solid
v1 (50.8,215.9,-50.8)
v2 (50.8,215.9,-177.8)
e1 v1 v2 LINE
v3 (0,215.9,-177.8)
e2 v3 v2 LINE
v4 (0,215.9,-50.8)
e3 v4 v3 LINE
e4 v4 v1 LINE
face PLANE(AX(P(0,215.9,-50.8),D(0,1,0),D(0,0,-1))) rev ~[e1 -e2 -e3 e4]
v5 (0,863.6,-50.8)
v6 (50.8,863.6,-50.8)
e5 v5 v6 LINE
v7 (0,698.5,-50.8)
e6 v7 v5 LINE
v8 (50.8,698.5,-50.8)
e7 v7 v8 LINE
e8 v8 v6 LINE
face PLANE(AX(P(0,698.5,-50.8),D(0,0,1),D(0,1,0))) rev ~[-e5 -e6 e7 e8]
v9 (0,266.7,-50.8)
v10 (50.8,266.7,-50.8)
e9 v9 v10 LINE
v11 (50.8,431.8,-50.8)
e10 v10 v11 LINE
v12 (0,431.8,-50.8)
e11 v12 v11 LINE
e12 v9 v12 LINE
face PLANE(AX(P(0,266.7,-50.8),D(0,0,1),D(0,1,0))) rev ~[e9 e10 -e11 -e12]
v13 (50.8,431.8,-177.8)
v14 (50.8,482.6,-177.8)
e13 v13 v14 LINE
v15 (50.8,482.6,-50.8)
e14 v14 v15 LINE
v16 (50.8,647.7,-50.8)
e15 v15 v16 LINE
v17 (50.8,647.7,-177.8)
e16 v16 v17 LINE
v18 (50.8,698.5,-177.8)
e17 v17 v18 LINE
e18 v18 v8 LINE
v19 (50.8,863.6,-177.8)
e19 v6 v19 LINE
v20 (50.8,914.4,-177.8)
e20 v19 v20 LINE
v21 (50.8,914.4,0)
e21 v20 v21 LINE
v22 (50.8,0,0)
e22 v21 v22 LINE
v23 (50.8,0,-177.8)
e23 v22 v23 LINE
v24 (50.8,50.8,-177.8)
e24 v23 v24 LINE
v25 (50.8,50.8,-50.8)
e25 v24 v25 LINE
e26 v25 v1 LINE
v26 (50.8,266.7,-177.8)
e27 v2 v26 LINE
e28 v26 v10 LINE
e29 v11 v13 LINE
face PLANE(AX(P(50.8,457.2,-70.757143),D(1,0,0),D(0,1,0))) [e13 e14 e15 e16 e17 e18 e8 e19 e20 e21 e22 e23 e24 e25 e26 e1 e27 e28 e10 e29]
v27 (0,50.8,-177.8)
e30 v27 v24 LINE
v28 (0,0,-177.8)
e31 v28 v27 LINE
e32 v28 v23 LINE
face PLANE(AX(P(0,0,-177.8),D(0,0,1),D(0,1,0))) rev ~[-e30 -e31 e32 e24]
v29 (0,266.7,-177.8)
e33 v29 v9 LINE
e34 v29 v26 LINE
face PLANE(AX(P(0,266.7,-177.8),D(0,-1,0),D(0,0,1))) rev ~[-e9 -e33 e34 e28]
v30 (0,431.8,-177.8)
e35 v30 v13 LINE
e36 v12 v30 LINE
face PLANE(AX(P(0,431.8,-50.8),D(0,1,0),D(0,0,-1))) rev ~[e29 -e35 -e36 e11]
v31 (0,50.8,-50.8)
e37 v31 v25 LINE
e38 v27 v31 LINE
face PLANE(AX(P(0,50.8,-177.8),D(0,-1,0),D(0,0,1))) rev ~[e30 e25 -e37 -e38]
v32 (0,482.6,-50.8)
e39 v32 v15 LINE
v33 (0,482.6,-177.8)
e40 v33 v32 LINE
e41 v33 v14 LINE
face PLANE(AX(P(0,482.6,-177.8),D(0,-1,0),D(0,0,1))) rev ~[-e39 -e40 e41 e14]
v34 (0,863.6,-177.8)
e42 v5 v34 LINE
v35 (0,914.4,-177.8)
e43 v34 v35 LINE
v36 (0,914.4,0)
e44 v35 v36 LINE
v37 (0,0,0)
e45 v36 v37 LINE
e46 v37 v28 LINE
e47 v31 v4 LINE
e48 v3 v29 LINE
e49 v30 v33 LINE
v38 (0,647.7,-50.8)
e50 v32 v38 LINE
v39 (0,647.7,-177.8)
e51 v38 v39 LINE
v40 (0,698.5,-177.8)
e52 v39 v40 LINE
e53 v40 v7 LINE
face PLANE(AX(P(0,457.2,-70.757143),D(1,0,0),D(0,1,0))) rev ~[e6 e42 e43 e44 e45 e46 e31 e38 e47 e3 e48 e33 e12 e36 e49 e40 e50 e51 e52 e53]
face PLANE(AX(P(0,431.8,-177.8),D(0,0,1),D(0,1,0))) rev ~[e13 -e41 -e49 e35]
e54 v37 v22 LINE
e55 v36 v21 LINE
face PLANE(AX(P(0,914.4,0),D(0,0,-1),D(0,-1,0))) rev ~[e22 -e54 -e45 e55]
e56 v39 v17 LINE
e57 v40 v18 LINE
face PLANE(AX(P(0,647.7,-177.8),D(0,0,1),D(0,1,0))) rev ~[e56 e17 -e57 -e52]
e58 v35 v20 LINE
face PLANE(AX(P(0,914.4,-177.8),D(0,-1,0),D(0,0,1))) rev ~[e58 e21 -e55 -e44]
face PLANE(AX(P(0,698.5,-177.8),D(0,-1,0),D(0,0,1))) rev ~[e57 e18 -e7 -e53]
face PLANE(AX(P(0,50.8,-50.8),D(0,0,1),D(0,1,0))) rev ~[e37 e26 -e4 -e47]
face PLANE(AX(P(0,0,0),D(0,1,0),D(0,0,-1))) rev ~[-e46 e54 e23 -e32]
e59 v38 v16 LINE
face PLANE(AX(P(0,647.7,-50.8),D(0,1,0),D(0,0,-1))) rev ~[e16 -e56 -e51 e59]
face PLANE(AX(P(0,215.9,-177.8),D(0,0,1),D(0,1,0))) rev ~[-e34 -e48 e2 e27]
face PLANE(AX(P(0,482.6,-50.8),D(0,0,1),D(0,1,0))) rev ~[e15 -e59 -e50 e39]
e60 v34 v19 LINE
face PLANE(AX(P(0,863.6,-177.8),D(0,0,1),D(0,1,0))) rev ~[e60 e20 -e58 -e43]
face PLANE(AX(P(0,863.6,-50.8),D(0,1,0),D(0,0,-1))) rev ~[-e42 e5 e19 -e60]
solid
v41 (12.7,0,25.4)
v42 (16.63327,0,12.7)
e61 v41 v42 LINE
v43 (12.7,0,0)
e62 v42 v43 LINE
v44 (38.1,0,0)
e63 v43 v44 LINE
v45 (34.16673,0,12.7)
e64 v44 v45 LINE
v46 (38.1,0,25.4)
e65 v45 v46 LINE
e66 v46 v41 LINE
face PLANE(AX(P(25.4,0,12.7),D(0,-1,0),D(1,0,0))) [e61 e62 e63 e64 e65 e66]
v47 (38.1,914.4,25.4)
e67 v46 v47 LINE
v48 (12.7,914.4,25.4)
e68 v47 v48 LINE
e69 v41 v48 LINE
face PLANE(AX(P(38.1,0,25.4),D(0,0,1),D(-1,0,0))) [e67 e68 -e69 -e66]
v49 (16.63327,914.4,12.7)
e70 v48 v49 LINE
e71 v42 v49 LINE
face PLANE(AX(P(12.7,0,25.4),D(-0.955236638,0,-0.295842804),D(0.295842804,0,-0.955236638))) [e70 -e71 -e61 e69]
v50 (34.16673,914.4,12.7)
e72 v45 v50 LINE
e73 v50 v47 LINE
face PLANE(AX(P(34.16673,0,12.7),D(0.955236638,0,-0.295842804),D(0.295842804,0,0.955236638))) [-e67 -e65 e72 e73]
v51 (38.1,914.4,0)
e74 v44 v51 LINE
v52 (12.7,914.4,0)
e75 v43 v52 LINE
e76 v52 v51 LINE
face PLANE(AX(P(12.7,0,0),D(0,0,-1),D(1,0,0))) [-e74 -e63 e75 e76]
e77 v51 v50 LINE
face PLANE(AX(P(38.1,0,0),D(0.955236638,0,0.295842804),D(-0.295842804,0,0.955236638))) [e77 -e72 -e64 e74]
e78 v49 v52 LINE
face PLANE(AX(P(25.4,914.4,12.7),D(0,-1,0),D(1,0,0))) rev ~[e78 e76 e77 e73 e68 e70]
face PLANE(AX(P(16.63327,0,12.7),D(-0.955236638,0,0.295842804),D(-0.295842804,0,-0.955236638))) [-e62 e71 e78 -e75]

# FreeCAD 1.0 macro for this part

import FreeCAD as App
import Part
import Sketcher

V = App.Vector
Q = App.Units.Quantity

doc = App.newDocument("Part")
body = doc.addObject("PartDesign::Body", "Body")

# Sketch on YZ plane
sketch1 = body.newObject("Sketcher::SketchObject", "Sketch")
sketch1.AttachmentSupport = (doc.getObject("YZ_Plane"), [""])
sketch1.MapMode = "FlatFace"
sketch1.addGeometry([
    Part.LineSegment(V(914, 0, 0), V(0, 0, 0)),  # 0
    Part.LineSegment(V(0, 0, 0), V(0, -178, 0)),  # 1
    Part.LineSegment(V(0, -178, 0), V(51, -178, 0)),  # 2
    Part.LineSegment(V(51, -178, 0), V(51, -51, 0)),  # 3
    Part.LineSegment(V(51, -51, 0), V(216, -51, 0)),  # 4
    Part.LineSegment(V(216, -51, 0), V(216, -178, 0)),  # 5
    Part.LineSegment(V(216, -178, 0), V(267, -178, 0)),  # 6
    Part.LineSegment(V(267, -178, 0), V(267, -51, 0)),  # 7
    Part.LineSegment(V(267, -51, 0), V(432, -51, 0)),  # 8
    Part.LineSegment(V(432, -51, 0), V(432, -178, 0)),  # 9
    Part.LineSegment(V(432, -178, 0), V(483, -178, 0)),  # 10
    Part.LineSegment(V(483, -178, 0), V(483, -51, 0)),  # 11
    Part.LineSegment(V(483, -51, 0), V(648, -51, 0)),  # 12
    Part.LineSegment(V(648, -51, 0), V(648, -178, 0)),  # 13
    Part.LineSegment(V(648, -178, 0), V(698, -178, 0)),  # 14
    Part.LineSegment(V(698, -178, 0), V(698, -51, 0)),  # 15
    Part.LineSegment(V(698, -51, 0), V(864, -51, 0)),  # 16
    Part.LineSegment(V(864, -51, 0), V(864, -178, 0)),  # 17
    Part.LineSegment(V(864, -178, 0), V(914, -178, 0)),  # 18
    Part.LineSegment(V(914, -178, 0), V(914, 0, 0)),  # 19
], False)
sketch1.addConstraint([
    Sketcher.Constraint("Coincident", 0, 2, 1, 1),
    Sketcher.Constraint("Coincident", 1, 2, 2, 1),
    Sketcher.Constraint("Coincident", 2, 2, 3, 1),
    Sketcher.Constraint("Coincident", 3, 2, 4, 1),
    Sketcher.Constraint("Coincident", 4, 2, 5, 1),
    Sketcher.Constraint("Coincident", 5, 2, 6, 1),
    Sketcher.Constraint("Coincident", 6, 2, 7, 1),
    Sketcher.Constraint("Coincident", 7, 2, 8, 1),
    Sketcher.Constraint("Coincident", 8, 2, 9, 1),
    Sketcher.Constraint("Coincident", 9, 2, 10, 1),
    Sketcher.Constraint("Coincident", 10, 2, 11, 1),
    Sketcher.Constraint("Coincident", 11, 2, 12, 1),
    Sketcher.Constraint("Coincident", 12, 2, 13, 1),
    Sketcher.Constraint("Coincident", 13, 2, 14, 1),
    Sketcher.Constraint("Coincident", 14, 2, 15, 1),
    Sketcher.Constraint("Coincident", 15, 2, 16, 1),
    Sketcher.Constraint("Coincident", 16, 2, 17, 1),
    Sketcher.Constraint("Coincident", 17, 2, 18, 1),
    Sketcher.Constraint("Coincident", 18, 2, 19, 1),
    Sketcher.Constraint("Coincident", 19, 2, 0, 1),
    Sketcher.Constraint("Horizontal", 0),
    Sketcher.Constraint("Vertical", 1),
    Sketcher.Constraint("Horizontal", 2),
    Sketcher.Constraint("Vertical", 3),
    Sketcher.Constraint("Horizontal", 4),
    Sketcher.Constraint("Vertical", 5),
    Sketcher.Constraint("Horizontal", 6),
    Sketcher.Constraint("Vertical", 7),
    Sketcher.Constraint("Horizontal", 8),
    Sketcher.Constraint("Vertical", 9),
    Sketcher.Constraint("Horizontal", 10),
    Sketcher.Constraint("Vertical", 11),
    Sketcher.Constraint("Horizontal", 12),
    Sketcher.Constraint("Vertical", 13),
    Sketcher.Constraint("Horizontal", 14),
    Sketcher.Constraint("Vertical", 15),
    Sketcher.Constraint("Horizontal", 16),
    Sketcher.Constraint("Vertical", 17),
    Sketcher.Constraint("Horizontal", 18),
    Sketcher.Constraint("Vertical", 19),
    Sketcher.Constraint("Coincident", 0, 2, -1, 1),
    Sketcher.Constraint("Horizontal", 2, 2, 5, 2),
    Sketcher.Constraint("Horizontal", 4, 2, 7, 2),
    Sketcher.Constraint("Horizontal", 6, 2, 9, 2),
    Sketcher.Constraint("Horizontal", 8, 2, 11, 2),
    Sketcher.Constraint("Horizontal", 10, 2, 13, 2),
    Sketcher.Constraint("Horizontal", 12, 2, 15, 2),
    Sketcher.Constraint("Horizontal", 14, 2, 17, 2),
    Sketcher.Constraint("Equal", 2, 6),
    Sketcher.Constraint("Equal", 4, 8),
    Sketcher.Constraint("Equal", 6, 10),
    Sketcher.Constraint("Equal", 8, 12),
    Sketcher.Constraint("Equal", 10, 14),
    Sketcher.Constraint("Equal", 12, 16),
    Sketcher.Constraint("Equal", 14, 18),
    Sketcher.Constraint("DistanceX", 0, 2, 0, 1, Q("36 in")),
    Sketcher.Constraint("DistanceX", 2, 1, 2, 2, Q("2 in")),
    Sketcher.Constraint("DistanceY", 1, 2, 1, 1, Q("7 in")),
    Sketcher.Constraint("DistanceY", 3, 1, 3, 2, Q("5 in")),
])
pad1 = body.newObject("PartDesign::Pad", "Pad")
pad1.Profile = sketch1
pad1.Length = Q("2 in")
body2 = doc.addObject("PartDesign::Body", "Body001")

# Sketch on XZ plane
sketch2 = body2.newObject("Sketcher::SketchObject", "Sketch001")
sketch2.AttachmentSupport = (doc.getObject("XZ_Plane001"), [""])
sketch2.MapMode = "FlatFace"
sketch2.addGeometry([
    Part.LineSegment(V(17, 13, 0), V(13, 0, 0)),  # 0
    Part.LineSegment(V(13, 0, 0), V(38, 0, 0)),  # 1
    Part.LineSegment(V(38, 0, 0), V(34, 13, 0)),  # 2
    Part.LineSegment(V(34, 13, 0), V(38, 25, 0)),  # 3
    Part.LineSegment(V(38, 25, 0), V(13, 25, 0)),  # 4
    Part.LineSegment(V(13, 25, 0), V(17, 13, 0)),  # 5
], False)
sketch2.addConstraint([
    Sketcher.Constraint("Coincident", 0, 2, 1, 1),
    Sketcher.Constraint("Coincident", 1, 2, 2, 1),
    Sketcher.Constraint("Coincident", 2, 2, 3, 1),
    Sketcher.Constraint("Coincident", 3, 2, 4, 1),
    Sketcher.Constraint("Coincident", 4, 2, 5, 1),
    Sketcher.Constraint("Coincident", 5, 2, 0, 1),
    Sketcher.Constraint("Horizontal", 1),
    Sketcher.Constraint("Horizontal", 4),
    Sketcher.Constraint("PointOnObject", 0, 2, -1),
    Sketcher.Constraint("Parallel", 0, 3),
    Sketcher.Constraint("Parallel", 2, 5),
    Sketcher.Constraint("Horizontal", 2, 2, 5, 2),
    Sketcher.Constraint("Vertical", 1, 2, 3, 2),
    Sketcher.Constraint("Vertical", 0, 2, 4, 2),
    Sketcher.Constraint("DistanceX", 1, 1, 1, 2, Q("1 in")),
    Sketcher.Constraint("DistanceY", -1, 1, 3, 2, Q("1 in")),
    Sketcher.Constraint("DistanceX", -1, 1, 0, 2, Q("0.5 in")),
    Sketcher.Constraint("DistanceX", -1, 1, 2, 2, Q("34.16673 mm")),
])
pad2 = body2.newObject("PartDesign::Pad", "Pad001")
pad2.Profile = sketch2
pad2.Length = Q("36 in")
pad2.Reversed = True

doc.recompute()
